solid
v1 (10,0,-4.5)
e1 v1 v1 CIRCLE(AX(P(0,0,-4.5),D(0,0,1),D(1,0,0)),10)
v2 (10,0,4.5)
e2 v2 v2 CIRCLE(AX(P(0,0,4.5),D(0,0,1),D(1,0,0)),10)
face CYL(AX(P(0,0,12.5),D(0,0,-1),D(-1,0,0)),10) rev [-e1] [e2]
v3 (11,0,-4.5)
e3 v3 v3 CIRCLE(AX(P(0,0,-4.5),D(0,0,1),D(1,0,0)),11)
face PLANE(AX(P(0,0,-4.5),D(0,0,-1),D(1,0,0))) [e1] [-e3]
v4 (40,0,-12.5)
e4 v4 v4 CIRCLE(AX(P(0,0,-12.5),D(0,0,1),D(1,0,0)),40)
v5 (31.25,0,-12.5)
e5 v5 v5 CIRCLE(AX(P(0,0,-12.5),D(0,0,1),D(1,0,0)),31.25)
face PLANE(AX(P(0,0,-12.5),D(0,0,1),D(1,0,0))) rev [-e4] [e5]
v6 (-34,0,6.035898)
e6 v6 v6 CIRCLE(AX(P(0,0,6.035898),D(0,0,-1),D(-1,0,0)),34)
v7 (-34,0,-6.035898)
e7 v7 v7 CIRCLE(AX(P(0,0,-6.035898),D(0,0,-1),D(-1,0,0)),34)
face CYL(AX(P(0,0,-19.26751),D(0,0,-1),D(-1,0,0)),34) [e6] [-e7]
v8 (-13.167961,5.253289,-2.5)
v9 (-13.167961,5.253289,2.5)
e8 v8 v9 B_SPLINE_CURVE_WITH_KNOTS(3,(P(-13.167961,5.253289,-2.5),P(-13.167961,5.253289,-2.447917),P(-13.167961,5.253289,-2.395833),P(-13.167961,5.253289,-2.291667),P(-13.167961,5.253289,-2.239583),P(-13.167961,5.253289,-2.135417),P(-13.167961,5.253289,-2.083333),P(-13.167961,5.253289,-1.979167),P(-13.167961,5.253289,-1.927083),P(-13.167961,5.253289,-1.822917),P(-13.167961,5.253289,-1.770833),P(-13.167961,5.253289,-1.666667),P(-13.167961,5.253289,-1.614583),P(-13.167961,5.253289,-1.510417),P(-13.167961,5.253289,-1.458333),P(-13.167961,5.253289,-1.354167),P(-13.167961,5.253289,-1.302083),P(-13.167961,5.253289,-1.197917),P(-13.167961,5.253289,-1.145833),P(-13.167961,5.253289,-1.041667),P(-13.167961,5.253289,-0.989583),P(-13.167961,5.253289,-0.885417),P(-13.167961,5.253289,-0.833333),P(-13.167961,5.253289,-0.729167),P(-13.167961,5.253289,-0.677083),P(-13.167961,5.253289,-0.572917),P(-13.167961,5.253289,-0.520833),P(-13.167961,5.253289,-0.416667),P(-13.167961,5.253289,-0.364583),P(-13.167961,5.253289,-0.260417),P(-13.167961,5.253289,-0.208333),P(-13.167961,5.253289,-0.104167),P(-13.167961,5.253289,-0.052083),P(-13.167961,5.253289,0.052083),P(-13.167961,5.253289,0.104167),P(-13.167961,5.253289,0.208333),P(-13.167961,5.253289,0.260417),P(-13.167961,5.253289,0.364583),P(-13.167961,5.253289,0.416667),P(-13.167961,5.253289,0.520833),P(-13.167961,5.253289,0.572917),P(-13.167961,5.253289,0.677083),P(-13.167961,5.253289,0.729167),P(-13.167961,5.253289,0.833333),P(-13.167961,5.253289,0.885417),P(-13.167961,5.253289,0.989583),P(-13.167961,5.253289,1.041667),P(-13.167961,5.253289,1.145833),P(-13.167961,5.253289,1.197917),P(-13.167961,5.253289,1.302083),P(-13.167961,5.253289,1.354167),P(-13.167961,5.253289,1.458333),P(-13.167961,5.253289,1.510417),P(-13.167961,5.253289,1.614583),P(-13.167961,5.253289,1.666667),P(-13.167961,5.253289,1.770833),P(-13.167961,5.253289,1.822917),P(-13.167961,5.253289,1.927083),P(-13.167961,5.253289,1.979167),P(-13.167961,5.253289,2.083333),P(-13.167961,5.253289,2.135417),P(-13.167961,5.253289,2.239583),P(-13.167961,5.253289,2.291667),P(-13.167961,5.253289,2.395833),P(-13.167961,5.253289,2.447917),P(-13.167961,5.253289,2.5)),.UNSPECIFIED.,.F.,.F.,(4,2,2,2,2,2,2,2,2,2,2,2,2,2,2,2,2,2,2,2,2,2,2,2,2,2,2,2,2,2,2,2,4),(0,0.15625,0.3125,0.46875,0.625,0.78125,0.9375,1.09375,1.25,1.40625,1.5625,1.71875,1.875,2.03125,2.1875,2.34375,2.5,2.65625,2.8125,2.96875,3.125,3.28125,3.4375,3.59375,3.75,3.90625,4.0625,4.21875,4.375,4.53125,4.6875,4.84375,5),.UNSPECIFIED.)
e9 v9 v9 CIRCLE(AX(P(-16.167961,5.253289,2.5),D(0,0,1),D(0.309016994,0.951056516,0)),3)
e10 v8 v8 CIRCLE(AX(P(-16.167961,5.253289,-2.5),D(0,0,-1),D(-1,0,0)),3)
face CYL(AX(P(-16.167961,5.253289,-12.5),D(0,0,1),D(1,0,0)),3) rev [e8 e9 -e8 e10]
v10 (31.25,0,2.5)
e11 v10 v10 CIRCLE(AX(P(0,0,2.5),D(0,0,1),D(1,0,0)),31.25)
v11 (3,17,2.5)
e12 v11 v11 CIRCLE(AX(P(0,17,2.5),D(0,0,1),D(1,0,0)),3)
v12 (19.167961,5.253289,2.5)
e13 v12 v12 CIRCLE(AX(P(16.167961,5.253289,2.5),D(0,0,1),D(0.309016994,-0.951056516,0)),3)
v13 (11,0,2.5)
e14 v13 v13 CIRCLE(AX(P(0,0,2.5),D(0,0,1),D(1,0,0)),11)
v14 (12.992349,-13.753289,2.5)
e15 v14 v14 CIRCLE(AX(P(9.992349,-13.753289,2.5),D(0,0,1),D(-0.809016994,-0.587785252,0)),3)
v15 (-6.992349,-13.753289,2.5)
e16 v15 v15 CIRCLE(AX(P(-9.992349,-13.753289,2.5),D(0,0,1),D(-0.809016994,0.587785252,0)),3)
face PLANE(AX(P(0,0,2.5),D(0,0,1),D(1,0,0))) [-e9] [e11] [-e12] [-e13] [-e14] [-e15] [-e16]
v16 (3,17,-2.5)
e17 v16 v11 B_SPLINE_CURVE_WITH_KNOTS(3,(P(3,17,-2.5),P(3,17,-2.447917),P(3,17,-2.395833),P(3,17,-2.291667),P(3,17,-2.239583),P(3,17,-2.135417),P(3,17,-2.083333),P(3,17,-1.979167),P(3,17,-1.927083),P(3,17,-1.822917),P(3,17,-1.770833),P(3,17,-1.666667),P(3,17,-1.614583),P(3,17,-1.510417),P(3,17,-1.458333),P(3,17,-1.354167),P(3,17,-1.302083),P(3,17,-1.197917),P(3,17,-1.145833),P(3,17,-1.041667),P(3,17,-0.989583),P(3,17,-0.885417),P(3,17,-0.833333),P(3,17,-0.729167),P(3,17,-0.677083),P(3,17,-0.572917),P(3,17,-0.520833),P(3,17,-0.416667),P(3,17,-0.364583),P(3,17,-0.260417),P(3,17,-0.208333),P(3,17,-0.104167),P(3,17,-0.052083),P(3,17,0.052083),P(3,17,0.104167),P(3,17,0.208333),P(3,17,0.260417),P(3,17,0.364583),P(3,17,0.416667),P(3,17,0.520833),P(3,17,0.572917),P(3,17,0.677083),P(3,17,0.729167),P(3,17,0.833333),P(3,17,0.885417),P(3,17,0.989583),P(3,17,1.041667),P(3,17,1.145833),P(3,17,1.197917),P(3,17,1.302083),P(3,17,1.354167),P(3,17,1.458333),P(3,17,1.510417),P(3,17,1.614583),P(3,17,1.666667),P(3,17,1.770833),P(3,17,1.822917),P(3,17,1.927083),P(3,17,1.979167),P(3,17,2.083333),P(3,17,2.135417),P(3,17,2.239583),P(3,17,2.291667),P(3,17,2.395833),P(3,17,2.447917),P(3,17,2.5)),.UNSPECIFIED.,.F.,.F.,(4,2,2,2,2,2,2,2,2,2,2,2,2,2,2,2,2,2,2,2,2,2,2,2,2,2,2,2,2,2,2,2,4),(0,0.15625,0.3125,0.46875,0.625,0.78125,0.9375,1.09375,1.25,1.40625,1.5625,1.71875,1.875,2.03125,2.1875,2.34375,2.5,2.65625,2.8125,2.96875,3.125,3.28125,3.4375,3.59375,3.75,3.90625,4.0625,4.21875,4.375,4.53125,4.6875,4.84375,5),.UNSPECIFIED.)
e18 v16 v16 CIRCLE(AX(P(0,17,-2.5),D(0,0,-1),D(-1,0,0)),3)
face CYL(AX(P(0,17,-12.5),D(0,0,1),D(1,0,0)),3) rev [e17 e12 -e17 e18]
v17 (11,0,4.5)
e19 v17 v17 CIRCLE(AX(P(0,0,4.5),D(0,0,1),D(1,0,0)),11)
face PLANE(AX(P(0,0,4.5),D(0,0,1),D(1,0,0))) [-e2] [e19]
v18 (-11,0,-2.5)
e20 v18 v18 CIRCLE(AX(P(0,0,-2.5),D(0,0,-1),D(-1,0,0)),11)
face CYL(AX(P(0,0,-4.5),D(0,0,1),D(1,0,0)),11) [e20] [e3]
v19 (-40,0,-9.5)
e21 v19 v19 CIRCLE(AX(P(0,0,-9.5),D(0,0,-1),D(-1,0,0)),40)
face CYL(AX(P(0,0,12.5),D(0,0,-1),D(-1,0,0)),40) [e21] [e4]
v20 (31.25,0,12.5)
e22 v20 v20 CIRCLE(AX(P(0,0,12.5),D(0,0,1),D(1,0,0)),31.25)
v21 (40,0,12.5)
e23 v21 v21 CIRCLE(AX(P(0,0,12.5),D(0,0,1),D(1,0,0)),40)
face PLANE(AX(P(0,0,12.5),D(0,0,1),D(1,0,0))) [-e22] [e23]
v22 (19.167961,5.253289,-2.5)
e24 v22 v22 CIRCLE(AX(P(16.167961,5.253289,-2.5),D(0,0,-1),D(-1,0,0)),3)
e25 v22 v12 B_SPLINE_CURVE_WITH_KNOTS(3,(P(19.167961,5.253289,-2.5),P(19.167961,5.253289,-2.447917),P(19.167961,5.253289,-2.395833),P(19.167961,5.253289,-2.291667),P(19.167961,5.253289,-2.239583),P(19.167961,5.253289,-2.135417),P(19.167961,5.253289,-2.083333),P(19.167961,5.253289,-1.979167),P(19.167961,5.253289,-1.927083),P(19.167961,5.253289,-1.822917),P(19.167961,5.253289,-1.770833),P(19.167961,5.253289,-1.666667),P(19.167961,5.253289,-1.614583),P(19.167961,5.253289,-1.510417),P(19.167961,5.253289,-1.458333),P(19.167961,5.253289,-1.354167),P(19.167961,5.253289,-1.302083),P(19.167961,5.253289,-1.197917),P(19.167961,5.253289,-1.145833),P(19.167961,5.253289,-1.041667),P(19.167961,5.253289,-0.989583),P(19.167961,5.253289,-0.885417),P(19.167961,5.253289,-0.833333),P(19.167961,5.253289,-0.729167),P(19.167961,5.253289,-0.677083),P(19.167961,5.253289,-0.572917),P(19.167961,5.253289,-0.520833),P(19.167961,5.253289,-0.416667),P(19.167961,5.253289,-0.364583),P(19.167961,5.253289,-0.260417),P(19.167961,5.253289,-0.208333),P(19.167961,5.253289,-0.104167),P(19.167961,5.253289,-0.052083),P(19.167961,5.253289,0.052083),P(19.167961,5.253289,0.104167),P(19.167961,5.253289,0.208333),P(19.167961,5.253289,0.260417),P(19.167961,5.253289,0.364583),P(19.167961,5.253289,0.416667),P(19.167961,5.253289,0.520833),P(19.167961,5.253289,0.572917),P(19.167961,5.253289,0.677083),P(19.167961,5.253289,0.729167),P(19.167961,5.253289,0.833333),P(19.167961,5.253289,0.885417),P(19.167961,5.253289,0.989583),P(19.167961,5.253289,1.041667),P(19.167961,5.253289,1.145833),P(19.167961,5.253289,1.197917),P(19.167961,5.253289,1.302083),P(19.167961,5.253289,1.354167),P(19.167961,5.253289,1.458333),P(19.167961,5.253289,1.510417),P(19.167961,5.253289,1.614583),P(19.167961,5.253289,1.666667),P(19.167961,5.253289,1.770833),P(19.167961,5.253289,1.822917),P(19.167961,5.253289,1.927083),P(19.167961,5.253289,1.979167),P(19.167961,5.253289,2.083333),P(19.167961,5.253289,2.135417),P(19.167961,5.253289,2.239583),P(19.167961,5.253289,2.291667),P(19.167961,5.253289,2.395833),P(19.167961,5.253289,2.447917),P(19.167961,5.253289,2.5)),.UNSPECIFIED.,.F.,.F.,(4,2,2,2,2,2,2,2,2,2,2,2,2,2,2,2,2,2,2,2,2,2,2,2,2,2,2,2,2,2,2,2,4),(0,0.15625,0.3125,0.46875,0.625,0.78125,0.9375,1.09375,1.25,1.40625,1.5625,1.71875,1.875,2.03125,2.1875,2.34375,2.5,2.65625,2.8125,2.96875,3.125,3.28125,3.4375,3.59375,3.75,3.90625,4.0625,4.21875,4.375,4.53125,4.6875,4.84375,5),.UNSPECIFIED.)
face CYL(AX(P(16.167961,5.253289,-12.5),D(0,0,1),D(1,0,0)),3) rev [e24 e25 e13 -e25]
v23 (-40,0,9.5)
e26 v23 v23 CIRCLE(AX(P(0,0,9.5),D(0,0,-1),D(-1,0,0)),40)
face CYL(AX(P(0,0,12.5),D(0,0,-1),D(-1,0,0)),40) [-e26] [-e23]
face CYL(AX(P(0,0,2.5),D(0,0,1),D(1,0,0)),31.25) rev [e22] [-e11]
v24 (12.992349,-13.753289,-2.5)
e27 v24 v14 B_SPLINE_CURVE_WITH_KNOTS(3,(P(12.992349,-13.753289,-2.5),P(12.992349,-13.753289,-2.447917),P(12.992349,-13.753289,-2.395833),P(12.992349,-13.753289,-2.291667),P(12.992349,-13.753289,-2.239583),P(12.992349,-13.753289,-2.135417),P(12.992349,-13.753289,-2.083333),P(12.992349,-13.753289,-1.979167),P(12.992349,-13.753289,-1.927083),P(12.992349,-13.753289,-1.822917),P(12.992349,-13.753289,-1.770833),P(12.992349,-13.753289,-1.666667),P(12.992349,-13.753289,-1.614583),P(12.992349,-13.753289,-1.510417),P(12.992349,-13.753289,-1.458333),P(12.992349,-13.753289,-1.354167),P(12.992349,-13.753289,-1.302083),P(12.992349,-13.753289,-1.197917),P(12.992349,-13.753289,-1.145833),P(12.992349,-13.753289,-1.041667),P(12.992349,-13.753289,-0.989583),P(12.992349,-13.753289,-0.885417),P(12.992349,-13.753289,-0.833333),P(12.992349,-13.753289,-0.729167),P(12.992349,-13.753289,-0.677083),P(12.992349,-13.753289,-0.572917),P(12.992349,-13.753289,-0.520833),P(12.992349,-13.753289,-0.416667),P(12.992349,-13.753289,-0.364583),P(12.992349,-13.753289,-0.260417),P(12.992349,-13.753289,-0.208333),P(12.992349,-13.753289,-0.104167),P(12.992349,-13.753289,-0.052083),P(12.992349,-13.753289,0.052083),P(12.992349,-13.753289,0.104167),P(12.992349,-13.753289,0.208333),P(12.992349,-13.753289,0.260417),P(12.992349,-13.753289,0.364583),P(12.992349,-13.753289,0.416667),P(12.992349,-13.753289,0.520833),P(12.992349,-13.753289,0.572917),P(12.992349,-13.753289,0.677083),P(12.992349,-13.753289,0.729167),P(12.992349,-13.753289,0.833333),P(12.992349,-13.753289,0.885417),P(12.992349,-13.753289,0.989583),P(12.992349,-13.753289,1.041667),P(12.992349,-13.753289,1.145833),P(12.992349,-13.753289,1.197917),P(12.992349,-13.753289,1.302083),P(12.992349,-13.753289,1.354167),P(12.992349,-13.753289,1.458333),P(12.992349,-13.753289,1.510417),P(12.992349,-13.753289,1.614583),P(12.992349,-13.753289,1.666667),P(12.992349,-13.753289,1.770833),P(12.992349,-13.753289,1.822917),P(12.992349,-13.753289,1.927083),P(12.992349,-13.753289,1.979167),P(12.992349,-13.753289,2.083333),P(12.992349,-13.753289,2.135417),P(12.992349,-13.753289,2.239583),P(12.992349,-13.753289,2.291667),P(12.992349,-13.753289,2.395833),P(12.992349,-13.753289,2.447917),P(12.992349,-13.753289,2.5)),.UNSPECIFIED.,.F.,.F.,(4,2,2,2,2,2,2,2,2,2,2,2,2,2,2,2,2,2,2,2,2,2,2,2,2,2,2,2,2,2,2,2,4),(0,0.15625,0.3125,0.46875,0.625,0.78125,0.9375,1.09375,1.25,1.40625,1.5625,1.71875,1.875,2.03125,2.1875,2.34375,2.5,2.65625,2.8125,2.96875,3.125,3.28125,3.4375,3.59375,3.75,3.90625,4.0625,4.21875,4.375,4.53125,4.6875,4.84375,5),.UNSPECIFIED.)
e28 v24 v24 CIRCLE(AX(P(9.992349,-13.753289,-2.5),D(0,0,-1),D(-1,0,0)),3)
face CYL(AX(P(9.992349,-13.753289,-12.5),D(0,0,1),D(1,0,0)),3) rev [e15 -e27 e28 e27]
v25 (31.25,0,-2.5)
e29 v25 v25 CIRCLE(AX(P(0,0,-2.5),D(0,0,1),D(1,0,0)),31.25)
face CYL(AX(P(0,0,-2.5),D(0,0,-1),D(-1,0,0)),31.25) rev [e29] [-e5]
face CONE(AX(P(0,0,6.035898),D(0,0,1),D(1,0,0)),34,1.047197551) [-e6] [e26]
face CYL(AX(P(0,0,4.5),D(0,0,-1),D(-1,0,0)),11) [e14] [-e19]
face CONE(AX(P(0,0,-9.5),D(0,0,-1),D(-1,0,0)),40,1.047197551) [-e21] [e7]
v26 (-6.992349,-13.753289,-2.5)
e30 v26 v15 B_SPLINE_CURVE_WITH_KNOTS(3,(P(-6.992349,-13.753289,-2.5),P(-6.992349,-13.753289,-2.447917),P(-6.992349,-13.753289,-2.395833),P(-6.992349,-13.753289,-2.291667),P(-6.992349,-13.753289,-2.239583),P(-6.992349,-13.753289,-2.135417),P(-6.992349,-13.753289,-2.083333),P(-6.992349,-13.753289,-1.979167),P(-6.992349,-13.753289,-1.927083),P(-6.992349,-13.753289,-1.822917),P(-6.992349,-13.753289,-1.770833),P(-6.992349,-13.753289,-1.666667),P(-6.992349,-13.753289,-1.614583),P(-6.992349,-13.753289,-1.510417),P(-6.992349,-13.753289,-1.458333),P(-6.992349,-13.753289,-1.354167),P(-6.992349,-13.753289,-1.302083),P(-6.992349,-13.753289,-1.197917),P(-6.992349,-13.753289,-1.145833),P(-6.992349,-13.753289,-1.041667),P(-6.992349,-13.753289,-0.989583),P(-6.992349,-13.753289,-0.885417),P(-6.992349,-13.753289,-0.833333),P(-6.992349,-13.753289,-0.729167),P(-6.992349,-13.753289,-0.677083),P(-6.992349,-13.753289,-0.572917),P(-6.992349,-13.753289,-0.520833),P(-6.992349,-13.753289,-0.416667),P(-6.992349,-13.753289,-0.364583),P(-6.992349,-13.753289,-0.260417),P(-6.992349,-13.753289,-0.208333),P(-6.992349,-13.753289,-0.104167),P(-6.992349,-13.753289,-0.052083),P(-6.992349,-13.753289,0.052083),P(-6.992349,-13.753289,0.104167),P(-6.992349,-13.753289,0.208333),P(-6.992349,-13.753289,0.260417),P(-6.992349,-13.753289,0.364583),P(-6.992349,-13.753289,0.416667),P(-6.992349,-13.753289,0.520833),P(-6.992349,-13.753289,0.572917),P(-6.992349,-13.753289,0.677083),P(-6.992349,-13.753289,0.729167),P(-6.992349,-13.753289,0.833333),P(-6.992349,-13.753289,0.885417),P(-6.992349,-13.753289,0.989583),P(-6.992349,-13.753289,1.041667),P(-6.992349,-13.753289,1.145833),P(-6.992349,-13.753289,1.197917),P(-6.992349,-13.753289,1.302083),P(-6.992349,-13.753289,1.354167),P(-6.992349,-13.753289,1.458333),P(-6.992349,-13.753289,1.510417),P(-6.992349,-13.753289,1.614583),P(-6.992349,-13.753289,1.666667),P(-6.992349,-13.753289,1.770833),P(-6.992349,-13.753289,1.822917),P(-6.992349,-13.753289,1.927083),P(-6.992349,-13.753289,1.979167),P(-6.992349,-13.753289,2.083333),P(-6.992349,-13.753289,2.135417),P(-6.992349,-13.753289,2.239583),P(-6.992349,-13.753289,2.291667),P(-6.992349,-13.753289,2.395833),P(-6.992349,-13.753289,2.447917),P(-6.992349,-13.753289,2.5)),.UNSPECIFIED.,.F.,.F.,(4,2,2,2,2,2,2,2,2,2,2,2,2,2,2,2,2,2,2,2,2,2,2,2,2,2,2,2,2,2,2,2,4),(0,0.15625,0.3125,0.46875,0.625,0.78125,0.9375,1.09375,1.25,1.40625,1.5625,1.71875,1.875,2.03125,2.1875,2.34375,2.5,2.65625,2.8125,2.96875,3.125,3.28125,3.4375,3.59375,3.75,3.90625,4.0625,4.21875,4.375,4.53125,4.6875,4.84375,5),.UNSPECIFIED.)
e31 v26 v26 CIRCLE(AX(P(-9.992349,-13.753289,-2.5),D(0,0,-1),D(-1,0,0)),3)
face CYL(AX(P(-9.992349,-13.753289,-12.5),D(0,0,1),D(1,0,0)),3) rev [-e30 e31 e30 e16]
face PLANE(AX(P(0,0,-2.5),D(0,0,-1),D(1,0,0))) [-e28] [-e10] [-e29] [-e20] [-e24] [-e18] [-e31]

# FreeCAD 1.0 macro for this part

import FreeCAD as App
import Part
import Sketcher
Q = App.Units.Quantity


def add_polygon(sketch, points):
    """Adds a closed chain of lines whose ends are joined by coincident constraints."""
    first, n = sketch.GeometryCount, len(points)
    for a, b in zip(points, points[1:] + points[:1]):
        sketch.addGeometry(Part.LineSegment(App.Vector(*a, 0), App.Vector(*b, 0)), False)
    for i in range(n):
        sketch.addConstraint(Sketcher.Constraint("Coincident", first + i, 2, first + (i + 1) % n, 1))

doc = App.newDocument("Part")
params = doc.addObject("Spreadsheet::Sheet", "Params")
for row, (alias, value) in enumerate([
    ("sketch1_diameter", "80 mm"),
    ("sketch1_diameter2", "20 mm"),
    ("pad1_length", "25 mm"),
    ("sketch2_diameter", "62.5 mm"),
    ("pocket1_length", "10 mm"),
    ("sketch3_diameter", "22 mm"),
    ("sketch3_diameter2", "20 mm"),
    ("pad2_length", "2 mm"),
    ("sketch4_diameter", "6 mm"),
    ("sketch5_height", "19 mm"),
    ("groove_angle", "360 deg"),
], start=1):
    params.set(f"A{row}", alias)
    params.set(f"B{row}", "=" + value)
    params.setAlias(f"B{row}", alias)

body = doc.addObject("PartDesign::Body", "Body")

# Sketch on XY plane
sketch1 = body.newObject("Sketcher::SketchObject", "Sketch")
sketch1.AttachmentSupport = (doc.getObject("XY_Plane"), [""])
sketch1.MapMode = "FlatFace"
sketch1.addGeometry([
    Part.Circle(App.Vector(0, 0, 0), App.Vector(0, 0, 1), 40),
    Part.Circle(App.Vector(0, 0, 0), App.Vector(0, 0, 1), 10),
], False)
sketch1.addConstraint([
    Sketcher.Constraint("Coincident", 0, 3, -1, 1),
    Sketcher.Constraint("Coincident", 1, 3, -1, 1),
    Sketcher.Constraint("Diameter", 0, Q("80 mm")),
    Sketcher.Constraint("Diameter", 1, Q("20 mm")),
])
sketch1.setExpression("Constraints[2]", "Params.sketch1_diameter")
sketch1.setExpression("Constraints[3]", "Params.sketch1_diameter2")
pad1 = body.newObject("PartDesign::Pad", "Pad")
pad1.Profile = sketch1
pad1.setExpression("Length", "Params.pad1_length")
pad1.Midplane = True

# Sketch on XY plane
sketch2 = body.newObject("Sketcher::SketchObject", "Sketch001")
sketch2.AttachmentSupport = (doc.getObject("XY_Plane"), [""])
sketch2.MapMode = "FlatFace"
sketch2.AttachmentOffset = App.Placement(App.Vector(0, 0, 12.5), App.Rotation())
sketch2.addGeometry(Part.Circle(App.Vector(0, 0, 0), App.Vector(0, 0, 1), 31), False)
sketch2.addConstraint([
    Sketcher.Constraint("Coincident", 0, 3, -1, 1),
    Sketcher.Constraint("Diameter", 0, Q("62.5 mm")),
])
sketch2.setExpression("Constraints[1]", "Params.sketch2_diameter")
pocket1 = body.newObject("PartDesign::Pocket", "Pocket")
pocket1.Profile = sketch2
pocket1.setExpression("Length", "Params.pocket1_length")

# Sketch on XY plane
sketch3 = body.newObject("Sketcher::SketchObject", "Sketch002")
sketch3.AttachmentSupport = (doc.getObject("XY_Plane"), [""])
sketch3.MapMode = "FlatFace"
sketch3.AttachmentOffset = App.Placement(App.Vector(0, 0, 2.5), App.Rotation())
sketch3.addGeometry([
    Part.Circle(App.Vector(0, 0, 0), App.Vector(0, 0, 1), 11),
    Part.Circle(App.Vector(0, 0, 0), App.Vector(0, 0, 1), 10),
], False)
sketch3.addConstraint([
    Sketcher.Constraint("Coincident", 0, 3, -1, 1),
    Sketcher.Constraint("Coincident", 1, 3, -1, 1),
    Sketcher.Constraint("Diameter", 0, Q("22 mm")),
    Sketcher.Constraint("Diameter", 1, Q("20 mm")),
])
sketch3.setExpression("Constraints[2]", "Params.sketch3_diameter")
sketch3.setExpression("Constraints[3]", "Params.sketch3_diameter2")
pad2 = body.newObject("PartDesign::Pad", "Pad001")
pad2.Profile = sketch3
pad2.setExpression("Length", "Params.pad2_length")
doc.recompute()

mirrored = body.newObject("PartDesign::Mirrored", "Mirrored")
mirrored.Originals = [pocket1, pad2]
mirrored.MirrorPlane = (doc.getObject("XY_Plane"), [""])
body.Tip = mirrored

# Sketch on XY plane
sketch4 = body.newObject("Sketcher::SketchObject", "Sketch003")
sketch4.AttachmentSupport = (doc.getObject("XY_Plane"), [""])
sketch4.MapMode = "FlatFace"
sketch4.AttachmentOffset = App.Placement(App.Vector(0, 0, 2.5), App.Rotation())
sketch4.addGeometry(Part.Circle(App.Vector(0, 17, 0), App.Vector(0, 0, 1), 3), False)
sketch4.addConstraint([
    Sketcher.Constraint("PointOnObject", 0, 3, -2),
    Sketcher.Constraint("Diameter", 0, Q("6 mm")),
    Sketcher.Constraint("DistanceY", -1, 1, 0, 3, Q("17 mm")),
])
sketch4.setExpression("Constraints[1]", "Params.sketch4_diameter")
pocket2 = body.newObject("PartDesign::Pocket", "Pocket001")
pocket2.Profile = sketch4
pocket2.Type = "ThroughAll"
doc.recompute()

polarpattern = body.newObject("PartDesign::PolarPattern", "PolarPattern")
polarpattern.Originals = [pocket2]
polarpattern.Axis = (doc.getObject("Z_Axis"), [""])
polarpattern.Angle = 360
polarpattern.Occurrences = 5
body.Tip = polarpattern

# Sketch on XZ plane
sketch5 = body.newObject("Sketcher::SketchObject", "Sketch004")
sketch5.AttachmentSupport = (doc.getObject("XZ_Plane"), [""])
sketch5.MapMode = "FlatFace"
add_polygon(sketch5, [(40, -10), (34, -6), (34, 6), (40, 10)])  # lines 0-3
sketch5.addConstraint([
    Sketcher.Constraint("Vertical", 1),
    Sketcher.Constraint("Vertical", 3),
    Sketcher.Constraint("Equal", 0, 2),
    Sketcher.Constraint("DistanceY", 3, 2, 3, 1, Q("19 mm")),
    Sketcher.Constraint("Angle", 0, Q("150 deg")),
    Sketcher.Constraint("DistanceX", -1, 1, 0, 2, Q("34 mm")),
    Sketcher.Constraint("DistanceX", -1, 1, 2, 2, Q("40 mm")),
    Sketcher.Constraint("DistanceY", -1, 1, 2, 2, Q("9.5 mm")),
])
sketch5.setExpression("Constraints[7]", "Params.sketch5_height")
groove = body.newObject("PartDesign::Groove", "Groove")
groove.Profile = sketch5
groove.ReferenceAxis = (sketch5, ["V_Axis"])
groove.setExpression("Angle", "Params.groove_angle")

doc.recompute()
